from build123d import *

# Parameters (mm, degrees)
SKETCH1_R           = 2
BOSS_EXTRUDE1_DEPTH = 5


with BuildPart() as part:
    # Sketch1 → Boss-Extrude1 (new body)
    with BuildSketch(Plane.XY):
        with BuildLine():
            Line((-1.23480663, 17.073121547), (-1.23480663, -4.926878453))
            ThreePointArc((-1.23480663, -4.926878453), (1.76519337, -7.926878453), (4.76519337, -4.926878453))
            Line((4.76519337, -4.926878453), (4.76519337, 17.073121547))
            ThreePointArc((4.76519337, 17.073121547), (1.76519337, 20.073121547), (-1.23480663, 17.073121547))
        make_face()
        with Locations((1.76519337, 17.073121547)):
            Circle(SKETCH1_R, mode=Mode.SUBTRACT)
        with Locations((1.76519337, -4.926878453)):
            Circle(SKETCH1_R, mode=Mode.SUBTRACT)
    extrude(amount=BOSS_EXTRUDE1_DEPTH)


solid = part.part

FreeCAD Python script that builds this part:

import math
import FreeCAD as App
import Part
import Sketcher

doc = App.newDocument("Part")
body = doc.addObject("PartDesign::Body", "Body")

# Sketch on XY plane
sketch1 = doc.addObject("Sketcher::SketchObject", "Sketch")
body.addObject(sketch1)
sketch1.AttachmentSupport = (doc.XY_Plane, [""])
sketch1.MapMode = "FlatFace"
sketch1.addGeometry(Part.LineSegment(App.Vector(-1.234807, 17.073122, 0), App.Vector(-1.234807, -4.926878, 0)), False)
sketch1.addGeometry(Part.ArcOfCircle(Part.Circle(App.Vector(1.765193, -4.926878, 0), App.Vector(0, 0, 1), 3), math.radians(180), math.radians(360)), False)
sketch1.addGeometry(Part.LineSegment(App.Vector(4.765193, -4.926878, 0), App.Vector(4.765193, 17.073122, 0)), False)
sketch1.addGeometry(Part.ArcOfCircle(Part.Circle(App.Vector(1.765193, 17.073122, 0), App.Vector(0, 0, 1), 3), math.radians(0), math.radians(180)), False)
sketch1.addGeometry(Part.Circle(App.Vector(1.765193, -4.926878, 0), App.Vector(0, 0, 1), 2), False)
sketch1.addGeometry(Part.Circle(App.Vector(1.765193, 17.073122, 0), App.Vector(0, 0, 1), 2), False)
sketch1.addConstraint(Sketcher.Constraint("Tangent", 0, 2, 1, 1))
sketch1.addConstraint(Sketcher.Constraint("Tangent", 1, 2, 2, 1))
sketch1.addConstraint(Sketcher.Constraint("Tangent", 2, 2, 3, 1))
sketch1.addConstraint(Sketcher.Constraint("Tangent", 3, 2, 0, 1))
sketch1.addConstraint(Sketcher.Constraint("Vertical", 0))
sketch1.addConstraint(Sketcher.Constraint("Vertical", 2))
sketch1.addConstraint(Sketcher.Constraint("Coincident", 4, 3, 1, 3))
sketch1.addConstraint(Sketcher.Constraint("Coincident", 5, 3, 3, 3))
sketch1.addConstraint(Sketcher.Constraint("Equal", 4, 5))
sketch1.addConstraint(Sketcher.Constraint("Diameter", 4, 4.0))
sketch1.addConstraint(Sketcher.Constraint("Radius", 1, 3.0))
sketch1.addConstraint(Sketcher.Constraint("DistanceY", 0, 2, 0, 1, 22.0))
sketch1.addConstraint(Sketcher.Constraint("DistanceY", 1, 3, -1, 1, 4.926878))
sketch1.addConstraint(Sketcher.Constraint("DistanceX", -1, 1, 1, 3, 1.765193))
pad1 = doc.addObject("PartDesign::Pad", "Pad")
body.addObject(pad1)
pad1.Profile = sketch1
pad1.Length = 5

doc.recompute()
